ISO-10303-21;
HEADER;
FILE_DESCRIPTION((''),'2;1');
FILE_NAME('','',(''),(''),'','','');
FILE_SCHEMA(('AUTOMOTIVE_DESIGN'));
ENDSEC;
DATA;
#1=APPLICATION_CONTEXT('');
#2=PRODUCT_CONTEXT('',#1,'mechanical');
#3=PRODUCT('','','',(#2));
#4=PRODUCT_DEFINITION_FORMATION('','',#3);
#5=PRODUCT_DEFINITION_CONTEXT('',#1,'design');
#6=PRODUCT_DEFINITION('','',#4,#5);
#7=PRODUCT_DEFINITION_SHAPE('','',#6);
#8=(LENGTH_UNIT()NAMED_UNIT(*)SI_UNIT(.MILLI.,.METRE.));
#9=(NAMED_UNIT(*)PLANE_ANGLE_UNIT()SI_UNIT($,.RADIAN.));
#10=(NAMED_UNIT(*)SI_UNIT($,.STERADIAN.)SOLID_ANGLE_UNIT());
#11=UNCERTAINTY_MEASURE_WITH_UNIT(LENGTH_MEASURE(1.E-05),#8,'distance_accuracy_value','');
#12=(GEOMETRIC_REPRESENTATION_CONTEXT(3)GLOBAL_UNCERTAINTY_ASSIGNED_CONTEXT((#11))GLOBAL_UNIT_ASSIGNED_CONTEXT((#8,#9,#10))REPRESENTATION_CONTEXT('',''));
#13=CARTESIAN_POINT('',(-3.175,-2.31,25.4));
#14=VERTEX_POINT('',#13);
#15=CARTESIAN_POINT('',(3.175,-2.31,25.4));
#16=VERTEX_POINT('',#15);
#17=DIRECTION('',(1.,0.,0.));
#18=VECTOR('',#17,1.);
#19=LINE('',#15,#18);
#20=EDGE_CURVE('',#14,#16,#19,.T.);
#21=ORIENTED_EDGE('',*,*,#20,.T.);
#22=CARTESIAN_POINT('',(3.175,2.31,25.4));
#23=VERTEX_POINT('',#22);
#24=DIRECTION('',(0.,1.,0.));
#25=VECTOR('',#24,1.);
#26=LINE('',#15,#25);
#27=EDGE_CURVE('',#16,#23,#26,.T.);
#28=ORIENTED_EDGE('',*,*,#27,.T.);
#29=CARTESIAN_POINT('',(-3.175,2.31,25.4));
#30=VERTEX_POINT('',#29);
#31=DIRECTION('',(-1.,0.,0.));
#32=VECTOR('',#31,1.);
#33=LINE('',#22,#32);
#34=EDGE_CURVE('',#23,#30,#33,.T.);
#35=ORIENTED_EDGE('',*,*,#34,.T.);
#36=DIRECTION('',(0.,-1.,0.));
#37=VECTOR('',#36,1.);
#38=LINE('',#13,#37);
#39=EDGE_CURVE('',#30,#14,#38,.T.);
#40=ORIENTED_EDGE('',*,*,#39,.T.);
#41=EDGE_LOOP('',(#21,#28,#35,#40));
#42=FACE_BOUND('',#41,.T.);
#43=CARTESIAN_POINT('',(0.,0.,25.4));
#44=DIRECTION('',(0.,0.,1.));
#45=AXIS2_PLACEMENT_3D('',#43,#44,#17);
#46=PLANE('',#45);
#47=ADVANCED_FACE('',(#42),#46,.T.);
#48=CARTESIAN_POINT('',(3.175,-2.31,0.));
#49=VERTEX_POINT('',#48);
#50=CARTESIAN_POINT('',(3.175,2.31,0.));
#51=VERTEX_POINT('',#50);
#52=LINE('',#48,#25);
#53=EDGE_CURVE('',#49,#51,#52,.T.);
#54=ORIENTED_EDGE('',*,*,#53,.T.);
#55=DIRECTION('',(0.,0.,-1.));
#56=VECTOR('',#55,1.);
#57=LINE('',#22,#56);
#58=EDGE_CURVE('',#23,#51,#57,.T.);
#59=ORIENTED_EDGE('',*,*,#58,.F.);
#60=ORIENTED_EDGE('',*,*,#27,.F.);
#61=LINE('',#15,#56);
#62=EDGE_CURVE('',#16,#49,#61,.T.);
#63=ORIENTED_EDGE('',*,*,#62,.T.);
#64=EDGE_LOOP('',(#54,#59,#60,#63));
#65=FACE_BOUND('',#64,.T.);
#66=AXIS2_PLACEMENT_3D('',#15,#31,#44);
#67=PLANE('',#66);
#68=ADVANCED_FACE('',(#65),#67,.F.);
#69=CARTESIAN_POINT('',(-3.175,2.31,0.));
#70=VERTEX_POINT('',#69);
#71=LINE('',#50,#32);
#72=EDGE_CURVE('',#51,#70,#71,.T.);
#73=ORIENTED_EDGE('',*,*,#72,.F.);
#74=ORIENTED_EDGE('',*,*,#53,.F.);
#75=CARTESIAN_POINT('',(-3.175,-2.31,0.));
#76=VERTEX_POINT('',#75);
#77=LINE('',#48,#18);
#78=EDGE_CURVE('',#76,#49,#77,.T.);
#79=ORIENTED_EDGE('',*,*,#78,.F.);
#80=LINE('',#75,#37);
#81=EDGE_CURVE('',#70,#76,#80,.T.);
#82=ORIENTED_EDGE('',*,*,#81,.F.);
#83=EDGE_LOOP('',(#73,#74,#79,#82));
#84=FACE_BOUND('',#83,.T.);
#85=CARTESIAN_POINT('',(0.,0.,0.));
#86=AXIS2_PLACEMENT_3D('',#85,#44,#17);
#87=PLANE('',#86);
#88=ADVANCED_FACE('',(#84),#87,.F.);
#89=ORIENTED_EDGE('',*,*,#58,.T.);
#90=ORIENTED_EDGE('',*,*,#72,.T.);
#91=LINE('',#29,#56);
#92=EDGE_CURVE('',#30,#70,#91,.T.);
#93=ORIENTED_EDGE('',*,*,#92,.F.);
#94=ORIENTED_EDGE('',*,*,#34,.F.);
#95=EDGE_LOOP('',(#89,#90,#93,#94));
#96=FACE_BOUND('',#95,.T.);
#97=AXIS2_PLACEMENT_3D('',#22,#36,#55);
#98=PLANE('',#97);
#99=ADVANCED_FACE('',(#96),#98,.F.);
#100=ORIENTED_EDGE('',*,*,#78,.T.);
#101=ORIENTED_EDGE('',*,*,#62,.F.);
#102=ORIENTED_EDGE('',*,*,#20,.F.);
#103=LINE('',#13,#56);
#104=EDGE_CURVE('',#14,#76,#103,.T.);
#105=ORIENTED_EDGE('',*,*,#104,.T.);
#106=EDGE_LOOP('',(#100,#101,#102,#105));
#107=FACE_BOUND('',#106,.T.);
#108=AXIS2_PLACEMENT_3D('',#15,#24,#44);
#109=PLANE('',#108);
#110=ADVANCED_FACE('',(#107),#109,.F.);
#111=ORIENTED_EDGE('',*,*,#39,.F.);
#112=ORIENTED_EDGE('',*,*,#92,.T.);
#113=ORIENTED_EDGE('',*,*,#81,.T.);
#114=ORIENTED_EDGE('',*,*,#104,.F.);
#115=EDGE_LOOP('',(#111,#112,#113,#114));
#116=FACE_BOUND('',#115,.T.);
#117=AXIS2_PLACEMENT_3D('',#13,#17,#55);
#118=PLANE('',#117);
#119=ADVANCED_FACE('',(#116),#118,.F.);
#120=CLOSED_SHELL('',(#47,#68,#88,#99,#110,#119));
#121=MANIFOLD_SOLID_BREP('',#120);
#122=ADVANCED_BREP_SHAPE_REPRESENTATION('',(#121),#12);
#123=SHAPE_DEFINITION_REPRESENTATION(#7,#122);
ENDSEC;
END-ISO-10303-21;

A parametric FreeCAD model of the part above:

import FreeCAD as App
import Part
import Sketcher
from FreeCAD import Vector
Q = App.Units.Quantity


def add_polygon(sketch, points):
    """Adds a closed chain of lines whose ends are joined by coincident constraints."""
    first, n = sketch.GeometryCount, len(points)
    for a, b in zip(points, points[1:] + points[:1]):
        sketch.addGeometry(Part.LineSegment(App.Vector(*a, 0), App.Vector(*b, 0)), False)
    for i in range(n):
        sketch.addConstraint(Sketcher.Constraint("Coincident", first + i, 2, first + (i + 1) % n, 1))

doc = App.newDocument("Part")
params = doc.addObject("Spreadsheet::Sheet", "Params")
for row, (alias, value) in enumerate([
    ("sketch1_width", "0.25 in"),
    ("pad1_length", "1 in"),
], start=1):
    params.set(f"A{row}", alias)
    params.set(f"B{row}", "=" + value)
    params.setAlias(f"B{row}", alias)

body = doc.addObject("PartDesign::Body", "Body")

# Sketch on XY plane
sketch1 = body.newObject("Sketcher::SketchObject", "Sketch")
sketch1.AttachmentSupport = (doc.getObject("XY_Plane"), [""])
sketch1.MapMode = "FlatFace"
add_polygon(sketch1, [(-3.2, 2.3), (-3.2, -2.3), (3.2, -2.3), (3.2, 2.3)])  # lines 0-3
sketch1.addConstraint([
    Sketcher.Constraint("Vertical", 0),
    Sketcher.Constraint("Horizontal", 1),
    Sketcher.Constraint("Vertical", 2),
    Sketcher.Constraint("Horizontal", 3),
    Sketcher.Constraint("Symmetric", 0, 2, 2, 2, -1, 1),
    Sketcher.Constraint("DistanceX", 1, 1, 1, 2, Q("0.25 in")),
    Sketcher.Constraint("DistanceY", 0, 2, 0, 1, 4.62),
])
sketch1.setExpression("Constraints[9]", "Params.sketch1_width")
pad1 = body.newObject("PartDesign::Pad", "Pad")
pad1.Profile = sketch1
pad1.setExpression("Length", "Params.pad1_length")

doc.recompute()
